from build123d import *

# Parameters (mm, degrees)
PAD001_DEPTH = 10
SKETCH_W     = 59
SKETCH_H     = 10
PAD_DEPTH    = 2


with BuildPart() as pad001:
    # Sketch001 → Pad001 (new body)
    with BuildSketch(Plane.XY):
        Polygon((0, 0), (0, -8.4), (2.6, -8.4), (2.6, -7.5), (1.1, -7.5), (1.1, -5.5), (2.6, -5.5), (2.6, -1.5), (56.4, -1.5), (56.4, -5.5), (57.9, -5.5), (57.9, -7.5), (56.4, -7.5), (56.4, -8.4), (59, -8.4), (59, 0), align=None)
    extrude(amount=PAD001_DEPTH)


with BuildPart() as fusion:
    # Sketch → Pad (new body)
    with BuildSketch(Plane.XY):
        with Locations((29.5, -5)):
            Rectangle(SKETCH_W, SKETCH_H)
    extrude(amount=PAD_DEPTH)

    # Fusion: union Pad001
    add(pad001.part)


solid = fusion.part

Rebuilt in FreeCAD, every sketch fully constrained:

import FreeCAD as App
import Part
import Sketcher

V = App.Vector

doc = App.newDocument("Part")
body = doc.addObject("PartDesign::Body", "Body")

sketch1 = doc.addObject("Sketcher::SketchObject", "Sketch")
body.addObject(sketch1)
sketch1.AttachmentSupport = (doc.XY_Plane, [""])
sketch1.MapMode = "FlatFace"
sketch1.addGeometry([
    Part.LineSegment(V(0, 0, 0), V(0, -8.4, 0)),
    Part.LineSegment(V(0, -8.4, 0), V(2.6, -8.4, 0)),
    Part.LineSegment(V(2.6, -8.4, 0), V(2.6, -7.5, 0)),
    Part.LineSegment(V(2.6, -7.5, 0), V(1.1, -7.5, 0)),
    Part.LineSegment(V(1.1, -7.5, 0), V(1.1, -5.5, 0)),
    Part.LineSegment(V(1.1, -5.5, 0), V(2.6, -5.5, 0)),
    Part.LineSegment(V(2.6, -5.5, 0), V(2.6, -1.5, 0)),
    Part.LineSegment(V(2.6, -1.5, 0), V(56.4, -1.5, 0)),
    Part.LineSegment(V(56.4, -1.5, 0), V(56.4, -5.5, 0)),
    Part.LineSegment(V(56.4, -5.5, 0), V(57.9, -5.5, 0)),
    Part.LineSegment(V(57.9, -5.5, 0), V(57.9, -7.5, 0)),
    Part.LineSegment(V(57.9, -7.5, 0), V(56.4, -7.5, 0)),
    Part.LineSegment(V(56.4, -7.5, 0), V(56.4, -8.4, 0)),
    Part.LineSegment(V(56.4, -8.4, 0), V(59, -8.4, 0)),
    Part.LineSegment(V(59, -8.4, 0), V(59, 0, 0)),
    Part.LineSegment(V(59, 0, 0), V(0, 0, 0)),
], False)
sketch1.addConstraint([
    Sketcher.Constraint("Coincident", 0, 2, 1, 1),
    Sketcher.Constraint("Coincident", 1, 2, 2, 1),
    Sketcher.Constraint("Coincident", 2, 2, 3, 1),
    Sketcher.Constraint("Coincident", 3, 2, 4, 1),
    Sketcher.Constraint("Coincident", 4, 2, 5, 1),
    Sketcher.Constraint("Coincident", 5, 2, 6, 1),
    Sketcher.Constraint("Coincident", 6, 2, 7, 1),
    Sketcher.Constraint("Coincident", 7, 2, 8, 1),
    Sketcher.Constraint("Coincident", 8, 2, 9, 1),
    Sketcher.Constraint("Coincident", 9, 2, 10, 1),
    Sketcher.Constraint("Coincident", 10, 2, 11, 1),
    Sketcher.Constraint("Coincident", 11, 2, 12, 1),
    Sketcher.Constraint("Coincident", 12, 2, 13, 1),
    Sketcher.Constraint("Coincident", 13, 2, 14, 1),
    Sketcher.Constraint("Coincident", 14, 2, 15, 1),
    Sketcher.Constraint("Coincident", 15, 2, 0, 1),
    Sketcher.Constraint("Vertical", 0),
    Sketcher.Constraint("Horizontal", 1),
    Sketcher.Constraint("Vertical", 2),
    Sketcher.Constraint("Horizontal", 3),
    Sketcher.Constraint("Vertical", 4),
    Sketcher.Constraint("Horizontal", 5),
    Sketcher.Constraint("Vertical", 6),
    Sketcher.Constraint("Horizontal", 7),
    Sketcher.Constraint("Vertical", 8),
    Sketcher.Constraint("Horizontal", 9),
    Sketcher.Constraint("Vertical", 10),
    Sketcher.Constraint("Horizontal", 11),
    Sketcher.Constraint("Vertical", 12),
    Sketcher.Constraint("Horizontal", 13),
    Sketcher.Constraint("Vertical", 14),
    Sketcher.Constraint("Horizontal", 15),
    Sketcher.Constraint("Coincident", 15, 2, -1, 1),
    Sketcher.Constraint("Horizontal", 5, 2, 8, 2),
    Sketcher.Constraint("Horizontal", 3, 2, 10, 2),
    Sketcher.Constraint("Horizontal", 1, 2, 12, 2),
    Sketcher.Constraint("Vertical", 2, 2, 5, 2),
    Sketcher.Constraint("Vertical", 8, 2, 11, 2),
    Sketcher.Constraint("Equal", 5, 9),
    Sketcher.Constraint("Equal", 1, 13),
    Sketcher.Constraint("DistanceX", 15, 2, 15, 1, 59.0),
    Sketcher.Constraint("DistanceY", 4, 1, 4, 2, 2.0),
    Sketcher.Constraint("DistanceY", 6, 1, 6, 2, 4.0),
    Sketcher.Constraint("DistanceX", 1, 1, 1, 2, 2.6),
    Sketcher.Constraint("DistanceX", 3, 2, 3, 1, 1.5),
    Sketcher.Constraint("DistanceY", 0, 2, 0, 1, 8.4),
    Sketcher.Constraint("DistanceY", 2, 1, 2, 2, 0.9),
])
pad1 = doc.addObject("PartDesign::Pad", "Pad")
body.addObject(pad1)
pad1.Profile = sketch1
pad1.Length = 10
body2 = doc.addObject("PartDesign::Body", "Body001")

sketch2 = doc.addObject("Sketcher::SketchObject", "Sketch001")
body2.addObject(sketch2)
sketch2.AttachmentSupport = (doc.getObject("XY_Plane001"), [""])
sketch2.MapMode = "FlatFace"
sketch2.addGeometry([
    Part.LineSegment(V(0, 0, 0), V(0, -10, 0)),
    Part.LineSegment(V(0, -10, 0), V(59, -10, 0)),
    Part.LineSegment(V(59, -10, 0), V(59, 0, 0)),
    Part.LineSegment(V(59, 0, 0), V(0, 0, 0)),
], False)
sketch2.addConstraint([
    Sketcher.Constraint("Coincident", 0, 2, 1, 1),
    Sketcher.Constraint("Coincident", 1, 2, 2, 1),
    Sketcher.Constraint("Coincident", 2, 2, 3, 1),
    Sketcher.Constraint("Coincident", 3, 2, 0, 1),
    Sketcher.Constraint("Vertical", 0),
    Sketcher.Constraint("Horizontal", 1),
    Sketcher.Constraint("Vertical", 2),
    Sketcher.Constraint("Horizontal", 3),
    Sketcher.Constraint("Coincident", 3, 2, -1, 1),
    Sketcher.Constraint("DistanceX", 1, 1, 1, 2, 59.0),
    Sketcher.Constraint("DistanceY", 0, 2, 0, 1, 10.0),
])
pad2 = doc.addObject("PartDesign::Pad", "Pad001")
body2.addObject(pad2)
pad2.Profile = sketch2
pad2.Length = 2
doc.recompute()

boolean = doc.addObject("PartDesign::Boolean", "Boolean")
body2.addObject(boolean)
boolean.Type = "Fuse"
boolean.addObjects([body])

doc.recompute()
